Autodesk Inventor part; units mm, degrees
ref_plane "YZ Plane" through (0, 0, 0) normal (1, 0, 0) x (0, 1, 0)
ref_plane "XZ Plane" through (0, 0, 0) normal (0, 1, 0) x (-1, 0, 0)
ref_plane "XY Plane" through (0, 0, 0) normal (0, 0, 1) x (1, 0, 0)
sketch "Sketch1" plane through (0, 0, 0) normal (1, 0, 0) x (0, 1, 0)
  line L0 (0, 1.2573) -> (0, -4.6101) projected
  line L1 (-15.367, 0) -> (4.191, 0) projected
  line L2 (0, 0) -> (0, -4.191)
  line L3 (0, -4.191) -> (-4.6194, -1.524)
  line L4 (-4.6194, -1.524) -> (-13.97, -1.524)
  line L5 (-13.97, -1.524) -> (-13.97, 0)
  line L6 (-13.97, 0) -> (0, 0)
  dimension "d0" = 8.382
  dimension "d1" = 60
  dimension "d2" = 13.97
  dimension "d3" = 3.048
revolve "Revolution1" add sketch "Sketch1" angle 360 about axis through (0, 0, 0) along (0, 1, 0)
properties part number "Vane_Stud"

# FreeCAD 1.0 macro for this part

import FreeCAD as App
import Part
import Sketcher
from FreeCAD import Vector
Q = App.Units.Quantity


def add_polygon(sketch, points):
    """Adds a closed chain of lines whose ends are joined by coincident constraints."""
    first, n = sketch.GeometryCount, len(points)
    for a, b in zip(points, points[1:] + points[:1]):
        sketch.addGeometry(Part.LineSegment(App.Vector(*a, 0), App.Vector(*b, 0)), False)
    for i in range(n):
        sketch.addConstraint(Sketcher.Constraint("Coincident", first + i, 2, first + (i + 1) % n, 1))

doc = App.newDocument("Part")
body = doc.addObject("PartDesign::Body", "Body")

# Sketch on YZ plane
sketch1 = doc.addObject("Sketcher::SketchObject", "Sketch")
body.addObject(sketch1)
sketch1.AttachmentSupport = (doc.YZ_Plane, [""])
sketch1.MapMode = "FlatFace"
add_polygon(sketch1, [(0, -4.2), (0, 0), (-14, 0), (-14, -1.5), (-4.6, -1.5)])  # lines 0-4
sketch1.addConstraint([
    Sketcher.Constraint("Vertical", 0),
    Sketcher.Constraint("Horizontal", 1),
    Sketcher.Constraint("Vertical", 2),
    Sketcher.Constraint("Horizontal", 3),
    Sketcher.Constraint("Coincident", 0, 2, -1, 1),
    Sketcher.Constraint("DistanceX", 1, 2, 1, 1, Q("0.55 in")),
    Sketcher.Constraint("Angle", 4, Q("-30 deg")),
    Sketcher.Constraint("DistanceY", 2, 2, 2, 1, Q("0.06 in")),
    Sketcher.Constraint("Distance", 4, Q("0.21 in")),
])
revolution = doc.addObject("PartDesign::Revolution", "Revolution")
body.addObject(revolution)
revolution.Profile = sketch1
revolution.ReferenceAxis = (sketch1, ["H_Axis"])
revolution.Angle = 360

doc.recompute()
